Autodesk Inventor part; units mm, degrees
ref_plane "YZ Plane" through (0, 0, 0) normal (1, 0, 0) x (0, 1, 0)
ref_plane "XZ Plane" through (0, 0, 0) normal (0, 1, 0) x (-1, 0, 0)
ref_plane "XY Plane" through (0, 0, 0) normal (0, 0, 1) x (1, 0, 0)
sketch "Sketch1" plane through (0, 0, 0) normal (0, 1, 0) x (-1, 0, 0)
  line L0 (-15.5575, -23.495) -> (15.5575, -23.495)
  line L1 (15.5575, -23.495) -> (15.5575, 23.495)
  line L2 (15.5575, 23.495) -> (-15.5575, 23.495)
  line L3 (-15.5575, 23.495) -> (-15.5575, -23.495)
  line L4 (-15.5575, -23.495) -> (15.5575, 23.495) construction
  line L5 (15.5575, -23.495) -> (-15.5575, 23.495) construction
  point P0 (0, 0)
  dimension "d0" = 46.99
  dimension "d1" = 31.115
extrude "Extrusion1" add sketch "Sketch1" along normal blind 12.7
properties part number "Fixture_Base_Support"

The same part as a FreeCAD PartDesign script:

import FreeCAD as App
import Part
import Sketcher

V = App.Vector
Q = App.Units.Quantity


def add_polygon(sketch, points):
    """Adds a closed chain of lines whose ends are joined by coincident constraints."""
    first, n = sketch.GeometryCount, len(points)
    for a, b in zip(points, points[1:] + points[:1]):
        sketch.addGeometry(Part.LineSegment(App.Vector(*a, 0), App.Vector(*b, 0)), False)
    for i in range(n):
        sketch.addConstraint(Sketcher.Constraint("Coincident", first + i, 2, first + (i + 1) % n, 1))

doc = App.newDocument("Part")
params = doc.addObject("Spreadsheet::Sheet", "Params")
for row, (alias, value) in enumerate([
    ("sketch1_height", "1.85 in"),
    ("sketch1_width", "1.225 in"),
    ("pad1_length", "0.5 in"),
], start=1):
    params.set(f"A{row}", alias)
    params.set(f"B{row}", "=" + value)
    params.setAlias(f"B{row}", alias)

body = doc.addObject("PartDesign::Body", "Body")

# Sketch on XZ plane
sketch1 = body.newObject("Sketcher::SketchObject", "Sketch")
sketch1.AttachmentSupport = (doc.getObject("XZ_Plane"), [""])
sketch1.MapMode = "FlatFace"
add_polygon(sketch1, [(16, 23), (16, -23), (-16, -23), (-16, 23)])  # lines 0-3
sketch1.addConstraint([
    Sketcher.Constraint("Vertical", 0),
    Sketcher.Constraint("Horizontal", 1),
    Sketcher.Constraint("Vertical", 2),
    Sketcher.Constraint("Horizontal", 3),
    Sketcher.Constraint("Symmetric", 0, 2, 2, 2, -1, 1),
    Sketcher.Constraint("DistanceY", 0, 2, 0, 1, Q("1.85 in")),
    Sketcher.Constraint("DistanceX", 1, 2, 1, 1, Q("1.225 in")),
])
sketch1.setExpression("Constraints[9]", "Params.sketch1_height")
sketch1.setExpression("Constraints[10]", "Params.sketch1_width")
pad1 = body.newObject("PartDesign::Pad", "Pad")
pad1.Profile = sketch1
pad1.setExpression("Length", "Params.pad1_length")
pad1.Reversed = True

doc.recompute()
